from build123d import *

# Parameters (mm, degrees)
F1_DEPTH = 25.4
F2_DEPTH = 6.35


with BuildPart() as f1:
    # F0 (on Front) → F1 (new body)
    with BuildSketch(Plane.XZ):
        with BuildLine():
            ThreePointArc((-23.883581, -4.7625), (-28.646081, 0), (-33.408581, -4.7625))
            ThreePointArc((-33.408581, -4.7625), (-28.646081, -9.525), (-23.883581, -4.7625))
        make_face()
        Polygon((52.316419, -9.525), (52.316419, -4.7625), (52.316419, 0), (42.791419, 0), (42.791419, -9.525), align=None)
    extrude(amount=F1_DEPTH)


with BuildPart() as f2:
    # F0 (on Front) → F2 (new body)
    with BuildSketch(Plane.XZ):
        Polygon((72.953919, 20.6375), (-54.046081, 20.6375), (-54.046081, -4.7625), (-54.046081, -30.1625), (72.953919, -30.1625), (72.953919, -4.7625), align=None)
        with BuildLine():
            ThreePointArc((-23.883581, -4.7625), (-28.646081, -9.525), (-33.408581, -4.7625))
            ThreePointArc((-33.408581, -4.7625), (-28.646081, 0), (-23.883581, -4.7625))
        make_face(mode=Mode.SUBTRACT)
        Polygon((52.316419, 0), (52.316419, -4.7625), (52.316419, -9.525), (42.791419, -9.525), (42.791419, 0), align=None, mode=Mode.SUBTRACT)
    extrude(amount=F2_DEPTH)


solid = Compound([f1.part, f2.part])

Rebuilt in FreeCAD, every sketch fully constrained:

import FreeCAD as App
import Part
import Sketcher
from FreeCAD import Vector
Q = App.Units.Quantity

doc = App.newDocument("Part")
body = doc.addObject("PartDesign::Body", "Body")
body.AllowCompound = True

# Sketch on XZ plane
sketch1 = doc.addObject("Sketcher::SketchObject", "Sketch")
body.addObject(sketch1)
sketch1.AttachmentSupport = (doc.XZ_Plane, [""])
sketch1.MapMode = "FlatFace"
sketch1.addGeometry(Part.Circle(Vector(-28.6, -4.8, 0), Vector(0, 0, 1), 4.8), False)
sketch1.addGeometry(Part.LineSegment(Vector(52.3, -9.5, 0), Vector(52.3, 0, 0)), False)
sketch1.addGeometry(Part.LineSegment(Vector(52.3, 0, 0), Vector(42.8, 0, 0)), False)
sketch1.addGeometry(Part.LineSegment(Vector(42.8, 0, 0), Vector(42.8, -9.5, 0)), False)
sketch1.addGeometry(Part.LineSegment(Vector(42.8, -9.5, 0), Vector(52.3, -9.5, 0)), False)
sketch1.addConstraint(Sketcher.Constraint("Coincident", 1, 2, 2, 1))
sketch1.addConstraint(Sketcher.Constraint("Coincident", 2, 2, 3, 1))
sketch1.addConstraint(Sketcher.Constraint("Coincident", 3, 2, 4, 1))
sketch1.addConstraint(Sketcher.Constraint("Coincident", 4, 2, 1, 1))
sketch1.addConstraint(Sketcher.Constraint("Vertical", 1))
sketch1.addConstraint(Sketcher.Constraint("Horizontal", 2))
sketch1.addConstraint(Sketcher.Constraint("Vertical", 3))
sketch1.addConstraint(Sketcher.Constraint("Horizontal", 4))
sketch1.addConstraint(Sketcher.Constraint("PointOnObject", 1, 2, -1))
sketch1.addConstraint(Sketcher.Constraint("Equal", 4, 1))
sketch1.addConstraint(Sketcher.Constraint("Diameter", 0, Q("0.375 in")))
sketch1.addConstraint(Sketcher.Constraint("DistanceX", 2, 2, 2, 1, Q("0.375 in")))
sketch1.addConstraint(Sketcher.Constraint("DistanceY", 0, 3, -1, 1, Q("0.1875 in")))
sketch1.addConstraint(Sketcher.Constraint("DistanceX", 0, 3, 1, 2, Q("3.1875 in")))
sketch1.addConstraint(Sketcher.Constraint("DistanceX", 0, 3, -1, 1, 28.646081))
pad1 = doc.addObject("PartDesign::Pad", "Pad")
body.addObject(pad1)
pad1.Profile = sketch1
pad1.Length = Q("1 in")
body2 = doc.addObject("PartDesign::Body", "Body001")

# Sketch on XZ plane
sketch2 = doc.addObject("Sketcher::SketchObject", "Sketch001")
body2.addObject(sketch2)
sketch2.AttachmentSupport = (doc.getObject("XZ_Plane001"), [""])
sketch2.MapMode = "FlatFace"
sketch2.addGeometry(Part.LineSegment(Vector(73, 20.6, 0), Vector(-54, 20.6, 0)), False)
sketch2.addGeometry(Part.LineSegment(Vector(-54, 20.6, 0), Vector(-54, -30.2, 0)), False)
sketch2.addGeometry(Part.LineSegment(Vector(-54, -30.2, 0), Vector(73, -30.2, 0)), False)
sketch2.addGeometry(Part.LineSegment(Vector(73, -30.2, 0), Vector(73, 20.6, 0)), False)
sketch2.addGeometry(Part.LineSegment(Vector(42.8, 0, 0), Vector(52.3, 0, 0)), False)
sketch2.addGeometry(Part.LineSegment(Vector(52.3, 0, 0), Vector(52.3, -9.5, 0)), False)
sketch2.addGeometry(Part.LineSegment(Vector(52.3, -9.5, 0), Vector(42.8, -9.5, 0)), False)
sketch2.addGeometry(Part.LineSegment(Vector(42.8, -9.5, 0), Vector(42.8, 0, 0)), False)
sketch2.addGeometry(Part.Circle(Vector(-28.6, -4.8, 0), Vector(0, 0, 1), 4.8), False)
sketch2.addConstraint(Sketcher.Constraint("Coincident", 0, 2, 1, 1))
sketch2.addConstraint(Sketcher.Constraint("Coincident", 1, 2, 2, 1))
sketch2.addConstraint(Sketcher.Constraint("Coincident", 2, 2, 3, 1))
sketch2.addConstraint(Sketcher.Constraint("Coincident", 3, 2, 0, 1))
sketch2.addConstraint(Sketcher.Constraint("Coincident", 4, 2, 5, 1))
sketch2.addConstraint(Sketcher.Constraint("Coincident", 5, 2, 6, 1))
sketch2.addConstraint(Sketcher.Constraint("Coincident", 6, 2, 7, 1))
sketch2.addConstraint(Sketcher.Constraint("Coincident", 7, 2, 4, 1))
sketch2.addConstraint(Sketcher.Constraint("Horizontal", 0))
sketch2.addConstraint(Sketcher.Constraint("Vertical", 1))
sketch2.addConstraint(Sketcher.Constraint("Horizontal", 2))
sketch2.addConstraint(Sketcher.Constraint("Vertical", 3))
sketch2.addConstraint(Sketcher.Constraint("Horizontal", 4))
sketch2.addConstraint(Sketcher.Constraint("Vertical", 5))
sketch2.addConstraint(Sketcher.Constraint("Horizontal", 6))
sketch2.addConstraint(Sketcher.Constraint("Vertical", 7))
sketch2.addConstraint(Sketcher.Constraint("PointOnObject", 4, 2, -1))
sketch2.addConstraint(Sketcher.Constraint("Equal", 6, 5))
sketch2.addConstraint(Sketcher.Constraint("DistanceX", 0, 2, 0, 1, Q("5 in")))
sketch2.addConstraint(Sketcher.Constraint("DistanceY", 1, 2, 1, 1, Q("2 in")))
sketch2.addConstraint(Sketcher.Constraint("Diameter", 8, Q("0.375 in")))
sketch2.addConstraint(Sketcher.Constraint("DistanceX", 0, 2, 8, 3, Q("1 in")))
sketch2.addConstraint(Sketcher.Constraint("DistanceY", 8, 3, 0, 2, Q("1 in")))
sketch2.addConstraint(Sketcher.Constraint("DistanceX", 4, 1, 4, 2, Q("0.375 in")))
sketch2.addConstraint(Sketcher.Constraint("DistanceY", 8, 3, -1, 1, Q("0.1875 in")))
sketch2.addConstraint(Sketcher.Constraint("DistanceX", 4, 2, 3, 2, Q("0.8125 in")))
sketch2.addConstraint(Sketcher.Constraint("DistanceX", 8, 3, -1, 1, 28.646081))
pad2 = doc.addObject("PartDesign::Pad", "Pad001")
body2.addObject(pad2)
pad2.Profile = sketch2
pad2.Length = Q("0.25 in")

doc.recompute()
